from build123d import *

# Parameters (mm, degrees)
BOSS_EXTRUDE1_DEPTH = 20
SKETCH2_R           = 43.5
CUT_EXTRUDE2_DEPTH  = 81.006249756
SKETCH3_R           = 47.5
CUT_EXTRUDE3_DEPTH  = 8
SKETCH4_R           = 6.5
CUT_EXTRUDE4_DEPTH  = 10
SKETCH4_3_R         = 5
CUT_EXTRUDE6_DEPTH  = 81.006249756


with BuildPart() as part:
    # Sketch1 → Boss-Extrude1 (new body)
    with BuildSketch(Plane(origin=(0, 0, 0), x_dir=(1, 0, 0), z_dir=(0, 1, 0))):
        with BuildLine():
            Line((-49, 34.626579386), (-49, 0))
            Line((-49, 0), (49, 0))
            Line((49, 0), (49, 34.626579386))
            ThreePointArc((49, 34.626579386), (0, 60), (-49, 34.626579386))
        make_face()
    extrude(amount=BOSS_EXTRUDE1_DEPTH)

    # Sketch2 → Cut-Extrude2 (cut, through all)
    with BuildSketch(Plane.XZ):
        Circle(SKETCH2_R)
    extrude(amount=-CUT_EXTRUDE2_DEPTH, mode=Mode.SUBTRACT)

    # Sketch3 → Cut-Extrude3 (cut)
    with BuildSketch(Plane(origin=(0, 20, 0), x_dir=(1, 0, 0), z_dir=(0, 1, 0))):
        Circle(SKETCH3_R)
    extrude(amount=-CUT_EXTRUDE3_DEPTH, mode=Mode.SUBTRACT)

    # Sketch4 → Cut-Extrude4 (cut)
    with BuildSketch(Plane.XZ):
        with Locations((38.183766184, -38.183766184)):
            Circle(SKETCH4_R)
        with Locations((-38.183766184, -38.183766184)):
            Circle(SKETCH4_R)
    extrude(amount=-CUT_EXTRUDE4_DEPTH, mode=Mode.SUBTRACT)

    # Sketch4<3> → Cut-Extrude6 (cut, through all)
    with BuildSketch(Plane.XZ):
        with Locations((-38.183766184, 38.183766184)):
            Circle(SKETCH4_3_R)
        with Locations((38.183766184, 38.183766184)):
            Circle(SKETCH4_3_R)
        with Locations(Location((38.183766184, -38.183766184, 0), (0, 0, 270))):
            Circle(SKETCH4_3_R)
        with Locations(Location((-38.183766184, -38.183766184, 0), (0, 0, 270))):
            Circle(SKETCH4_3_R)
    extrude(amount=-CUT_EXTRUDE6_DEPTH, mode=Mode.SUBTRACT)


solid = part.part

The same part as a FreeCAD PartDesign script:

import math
import FreeCAD as App
import Part
import Sketcher

doc = App.newDocument("Part")
body = doc.addObject("PartDesign::Body", "Body")

sketch1 = body.newObject("Sketcher::SketchObject", "Sketch")
sketch1.AttachmentSupport = (doc.getObject("XZ_Plane"), [""])
sketch1.MapMode = "FlatFace"
sketch1.addGeometry([
    Part.LineSegment(App.Vector(-49, -34.626579, 0), App.Vector(-49, 0, 0)),
    Part.LineSegment(App.Vector(-49, 0, 0), App.Vector(49, 0, 0)),
    Part.LineSegment(App.Vector(49, 0, 0), App.Vector(49, -34.626579, 0)),
    Part.ArcOfCircle(Part.Circle(App.Vector(0, 0, 0), App.Vector(0, 0, 1), 60), math.radians(-144.752493), math.radians(-35.247507)),
], False)
sketch1.addConstraint([
    Sketcher.Constraint("Coincident", 0, 2, 1, 1),
    Sketcher.Constraint("Coincident", 1, 2, 2, 1),
    Sketcher.Constraint("Coincident", 2, 2, 3, 2),
    Sketcher.Constraint("Coincident", 3, 1, 0, 1),
    Sketcher.Constraint("Vertical", 0),
    Sketcher.Constraint("Horizontal", 1),
    Sketcher.Constraint("Vertical", 2),
    Sketcher.Constraint("Coincident", 3, 3, -1, 1),
    Sketcher.Constraint("Symmetric", 0, 2, 1, 2, -1, 1),
    Sketcher.Constraint("Radius", 3, 60.0),
    Sketcher.Constraint("DistanceX", 1, 1, 1, 2, 98.0),
])
pad1 = body.newObject("PartDesign::Pad", "Pad")
pad1.Profile = sketch1
pad1.Length = 20
pad1.Reversed = True

sketch2 = body.newObject("Sketcher::SketchObject", "Sketch001")
sketch2.AttachmentSupport = (doc.getObject("XZ_Plane"), [""])
sketch2.MapMode = "FlatFace"
sketch2.addGeometry(Part.Circle(App.Vector(0, 0, 0), App.Vector(0, 0, 1), 43.5), False)
sketch2.addConstraint([
    Sketcher.Constraint("Coincident", 0, 3, -1, 1),
    Sketcher.Constraint("Diameter", 0, 87.0),
])
pocket1 = body.newObject("PartDesign::Pocket", "Pocket")
pocket1.Profile = sketch2
pocket1.Type = "ThroughAll"

sketch3 = body.newObject("Sketcher::SketchObject", "Sketch002")
sketch3.AttachmentSupport = (doc.getObject("XZ_Plane"), [""])
sketch3.MapMode = "FlatFace"
sketch3.AttachmentOffset = App.Placement(App.Vector(0, 0, -20), App.Rotation())
sketch3.addGeometry(Part.Circle(App.Vector(0, 0, 0), App.Vector(0, 0, 1), 47.5), False)
sketch3.addConstraint([
    Sketcher.Constraint("Coincident", 0, 3, -1, 1),
    Sketcher.Constraint("Diameter", 0, 95.0),
])
pocket2 = body.newObject("PartDesign::Pocket", "Pocket001")
pocket2.Profile = sketch3
pocket2.Length = 8
pocket2.Reversed = True

sketch4 = body.newObject("Sketcher::SketchObject", "Sketch003")
sketch4.AttachmentSupport = (doc.getObject("XZ_Plane"), [""])
sketch4.MapMode = "FlatFace"
sketch4.addGeometry([
    Part.Circle(App.Vector(38.183766, -38.183766, 0), App.Vector(0, 0, 1), 6.5),
    Part.Circle(App.Vector(-38.183766, -38.183766, 0), App.Vector(0, 0, 1), 6.5),
], False)
sketch4.addConstraint([
    Sketcher.Constraint("Equal", 0, 1),
    Sketcher.Constraint("Symmetric", 0, 3, 1, 3, -2),
    Sketcher.Constraint("Diameter", 0, 13.0),
    Sketcher.Constraint("DistanceX", -1, 1, 0, 3, 38.183766),
    Sketcher.Constraint("DistanceY", 0, 3, -1, 1, 38.183766),
])
pocket3 = body.newObject("PartDesign::Pocket", "Pocket002")
pocket3.Profile = sketch4
pocket3.Length = 10

sketch5 = body.newObject("Sketcher::SketchObject", "Sketch004")
sketch5.AttachmentSupport = (doc.getObject("XZ_Plane"), [""])
sketch5.MapMode = "FlatFace"
sketch5.addGeometry([
    Part.Circle(App.Vector(-38.183766, 38.183766, 0), App.Vector(0, 0, 1), 5),
    Part.Circle(App.Vector(38.183766, 38.183766, 0), App.Vector(0, 0, 1), 5),
    Part.Circle(App.Vector(38.183766, -38.183766, 0), App.Vector(0, 0, 1), 5),
    Part.Circle(App.Vector(-38.183766, -38.183766, 0), App.Vector(0, 0, 1), 5),
], False)
sketch5.addConstraint([
    Sketcher.Constraint("Equal", 0, 1),
    Sketcher.Constraint("Equal", 1, 2),
    Sketcher.Constraint("Equal", 2, 3),
    Sketcher.Constraint("Symmetric", 0, 3, 2, 3, -1, 1),
    Sketcher.Constraint("Symmetric", 1, 3, 3, 3, -1, 1),
    Sketcher.Constraint("Symmetric", 0, 3, 1, 3, -2),
    Sketcher.Constraint("Diameter", 0, 10.0),
    Sketcher.Constraint("DistanceX", 0, 3, -1, 1, 38.183766),
    Sketcher.Constraint("DistanceY", -1, 1, 0, 3, 38.183766),
])
pocket4 = body.newObject("PartDesign::Pocket", "Pocket003")
pocket4.Profile = sketch5
pocket4.Type = "ThroughAll"

doc.recompute()
